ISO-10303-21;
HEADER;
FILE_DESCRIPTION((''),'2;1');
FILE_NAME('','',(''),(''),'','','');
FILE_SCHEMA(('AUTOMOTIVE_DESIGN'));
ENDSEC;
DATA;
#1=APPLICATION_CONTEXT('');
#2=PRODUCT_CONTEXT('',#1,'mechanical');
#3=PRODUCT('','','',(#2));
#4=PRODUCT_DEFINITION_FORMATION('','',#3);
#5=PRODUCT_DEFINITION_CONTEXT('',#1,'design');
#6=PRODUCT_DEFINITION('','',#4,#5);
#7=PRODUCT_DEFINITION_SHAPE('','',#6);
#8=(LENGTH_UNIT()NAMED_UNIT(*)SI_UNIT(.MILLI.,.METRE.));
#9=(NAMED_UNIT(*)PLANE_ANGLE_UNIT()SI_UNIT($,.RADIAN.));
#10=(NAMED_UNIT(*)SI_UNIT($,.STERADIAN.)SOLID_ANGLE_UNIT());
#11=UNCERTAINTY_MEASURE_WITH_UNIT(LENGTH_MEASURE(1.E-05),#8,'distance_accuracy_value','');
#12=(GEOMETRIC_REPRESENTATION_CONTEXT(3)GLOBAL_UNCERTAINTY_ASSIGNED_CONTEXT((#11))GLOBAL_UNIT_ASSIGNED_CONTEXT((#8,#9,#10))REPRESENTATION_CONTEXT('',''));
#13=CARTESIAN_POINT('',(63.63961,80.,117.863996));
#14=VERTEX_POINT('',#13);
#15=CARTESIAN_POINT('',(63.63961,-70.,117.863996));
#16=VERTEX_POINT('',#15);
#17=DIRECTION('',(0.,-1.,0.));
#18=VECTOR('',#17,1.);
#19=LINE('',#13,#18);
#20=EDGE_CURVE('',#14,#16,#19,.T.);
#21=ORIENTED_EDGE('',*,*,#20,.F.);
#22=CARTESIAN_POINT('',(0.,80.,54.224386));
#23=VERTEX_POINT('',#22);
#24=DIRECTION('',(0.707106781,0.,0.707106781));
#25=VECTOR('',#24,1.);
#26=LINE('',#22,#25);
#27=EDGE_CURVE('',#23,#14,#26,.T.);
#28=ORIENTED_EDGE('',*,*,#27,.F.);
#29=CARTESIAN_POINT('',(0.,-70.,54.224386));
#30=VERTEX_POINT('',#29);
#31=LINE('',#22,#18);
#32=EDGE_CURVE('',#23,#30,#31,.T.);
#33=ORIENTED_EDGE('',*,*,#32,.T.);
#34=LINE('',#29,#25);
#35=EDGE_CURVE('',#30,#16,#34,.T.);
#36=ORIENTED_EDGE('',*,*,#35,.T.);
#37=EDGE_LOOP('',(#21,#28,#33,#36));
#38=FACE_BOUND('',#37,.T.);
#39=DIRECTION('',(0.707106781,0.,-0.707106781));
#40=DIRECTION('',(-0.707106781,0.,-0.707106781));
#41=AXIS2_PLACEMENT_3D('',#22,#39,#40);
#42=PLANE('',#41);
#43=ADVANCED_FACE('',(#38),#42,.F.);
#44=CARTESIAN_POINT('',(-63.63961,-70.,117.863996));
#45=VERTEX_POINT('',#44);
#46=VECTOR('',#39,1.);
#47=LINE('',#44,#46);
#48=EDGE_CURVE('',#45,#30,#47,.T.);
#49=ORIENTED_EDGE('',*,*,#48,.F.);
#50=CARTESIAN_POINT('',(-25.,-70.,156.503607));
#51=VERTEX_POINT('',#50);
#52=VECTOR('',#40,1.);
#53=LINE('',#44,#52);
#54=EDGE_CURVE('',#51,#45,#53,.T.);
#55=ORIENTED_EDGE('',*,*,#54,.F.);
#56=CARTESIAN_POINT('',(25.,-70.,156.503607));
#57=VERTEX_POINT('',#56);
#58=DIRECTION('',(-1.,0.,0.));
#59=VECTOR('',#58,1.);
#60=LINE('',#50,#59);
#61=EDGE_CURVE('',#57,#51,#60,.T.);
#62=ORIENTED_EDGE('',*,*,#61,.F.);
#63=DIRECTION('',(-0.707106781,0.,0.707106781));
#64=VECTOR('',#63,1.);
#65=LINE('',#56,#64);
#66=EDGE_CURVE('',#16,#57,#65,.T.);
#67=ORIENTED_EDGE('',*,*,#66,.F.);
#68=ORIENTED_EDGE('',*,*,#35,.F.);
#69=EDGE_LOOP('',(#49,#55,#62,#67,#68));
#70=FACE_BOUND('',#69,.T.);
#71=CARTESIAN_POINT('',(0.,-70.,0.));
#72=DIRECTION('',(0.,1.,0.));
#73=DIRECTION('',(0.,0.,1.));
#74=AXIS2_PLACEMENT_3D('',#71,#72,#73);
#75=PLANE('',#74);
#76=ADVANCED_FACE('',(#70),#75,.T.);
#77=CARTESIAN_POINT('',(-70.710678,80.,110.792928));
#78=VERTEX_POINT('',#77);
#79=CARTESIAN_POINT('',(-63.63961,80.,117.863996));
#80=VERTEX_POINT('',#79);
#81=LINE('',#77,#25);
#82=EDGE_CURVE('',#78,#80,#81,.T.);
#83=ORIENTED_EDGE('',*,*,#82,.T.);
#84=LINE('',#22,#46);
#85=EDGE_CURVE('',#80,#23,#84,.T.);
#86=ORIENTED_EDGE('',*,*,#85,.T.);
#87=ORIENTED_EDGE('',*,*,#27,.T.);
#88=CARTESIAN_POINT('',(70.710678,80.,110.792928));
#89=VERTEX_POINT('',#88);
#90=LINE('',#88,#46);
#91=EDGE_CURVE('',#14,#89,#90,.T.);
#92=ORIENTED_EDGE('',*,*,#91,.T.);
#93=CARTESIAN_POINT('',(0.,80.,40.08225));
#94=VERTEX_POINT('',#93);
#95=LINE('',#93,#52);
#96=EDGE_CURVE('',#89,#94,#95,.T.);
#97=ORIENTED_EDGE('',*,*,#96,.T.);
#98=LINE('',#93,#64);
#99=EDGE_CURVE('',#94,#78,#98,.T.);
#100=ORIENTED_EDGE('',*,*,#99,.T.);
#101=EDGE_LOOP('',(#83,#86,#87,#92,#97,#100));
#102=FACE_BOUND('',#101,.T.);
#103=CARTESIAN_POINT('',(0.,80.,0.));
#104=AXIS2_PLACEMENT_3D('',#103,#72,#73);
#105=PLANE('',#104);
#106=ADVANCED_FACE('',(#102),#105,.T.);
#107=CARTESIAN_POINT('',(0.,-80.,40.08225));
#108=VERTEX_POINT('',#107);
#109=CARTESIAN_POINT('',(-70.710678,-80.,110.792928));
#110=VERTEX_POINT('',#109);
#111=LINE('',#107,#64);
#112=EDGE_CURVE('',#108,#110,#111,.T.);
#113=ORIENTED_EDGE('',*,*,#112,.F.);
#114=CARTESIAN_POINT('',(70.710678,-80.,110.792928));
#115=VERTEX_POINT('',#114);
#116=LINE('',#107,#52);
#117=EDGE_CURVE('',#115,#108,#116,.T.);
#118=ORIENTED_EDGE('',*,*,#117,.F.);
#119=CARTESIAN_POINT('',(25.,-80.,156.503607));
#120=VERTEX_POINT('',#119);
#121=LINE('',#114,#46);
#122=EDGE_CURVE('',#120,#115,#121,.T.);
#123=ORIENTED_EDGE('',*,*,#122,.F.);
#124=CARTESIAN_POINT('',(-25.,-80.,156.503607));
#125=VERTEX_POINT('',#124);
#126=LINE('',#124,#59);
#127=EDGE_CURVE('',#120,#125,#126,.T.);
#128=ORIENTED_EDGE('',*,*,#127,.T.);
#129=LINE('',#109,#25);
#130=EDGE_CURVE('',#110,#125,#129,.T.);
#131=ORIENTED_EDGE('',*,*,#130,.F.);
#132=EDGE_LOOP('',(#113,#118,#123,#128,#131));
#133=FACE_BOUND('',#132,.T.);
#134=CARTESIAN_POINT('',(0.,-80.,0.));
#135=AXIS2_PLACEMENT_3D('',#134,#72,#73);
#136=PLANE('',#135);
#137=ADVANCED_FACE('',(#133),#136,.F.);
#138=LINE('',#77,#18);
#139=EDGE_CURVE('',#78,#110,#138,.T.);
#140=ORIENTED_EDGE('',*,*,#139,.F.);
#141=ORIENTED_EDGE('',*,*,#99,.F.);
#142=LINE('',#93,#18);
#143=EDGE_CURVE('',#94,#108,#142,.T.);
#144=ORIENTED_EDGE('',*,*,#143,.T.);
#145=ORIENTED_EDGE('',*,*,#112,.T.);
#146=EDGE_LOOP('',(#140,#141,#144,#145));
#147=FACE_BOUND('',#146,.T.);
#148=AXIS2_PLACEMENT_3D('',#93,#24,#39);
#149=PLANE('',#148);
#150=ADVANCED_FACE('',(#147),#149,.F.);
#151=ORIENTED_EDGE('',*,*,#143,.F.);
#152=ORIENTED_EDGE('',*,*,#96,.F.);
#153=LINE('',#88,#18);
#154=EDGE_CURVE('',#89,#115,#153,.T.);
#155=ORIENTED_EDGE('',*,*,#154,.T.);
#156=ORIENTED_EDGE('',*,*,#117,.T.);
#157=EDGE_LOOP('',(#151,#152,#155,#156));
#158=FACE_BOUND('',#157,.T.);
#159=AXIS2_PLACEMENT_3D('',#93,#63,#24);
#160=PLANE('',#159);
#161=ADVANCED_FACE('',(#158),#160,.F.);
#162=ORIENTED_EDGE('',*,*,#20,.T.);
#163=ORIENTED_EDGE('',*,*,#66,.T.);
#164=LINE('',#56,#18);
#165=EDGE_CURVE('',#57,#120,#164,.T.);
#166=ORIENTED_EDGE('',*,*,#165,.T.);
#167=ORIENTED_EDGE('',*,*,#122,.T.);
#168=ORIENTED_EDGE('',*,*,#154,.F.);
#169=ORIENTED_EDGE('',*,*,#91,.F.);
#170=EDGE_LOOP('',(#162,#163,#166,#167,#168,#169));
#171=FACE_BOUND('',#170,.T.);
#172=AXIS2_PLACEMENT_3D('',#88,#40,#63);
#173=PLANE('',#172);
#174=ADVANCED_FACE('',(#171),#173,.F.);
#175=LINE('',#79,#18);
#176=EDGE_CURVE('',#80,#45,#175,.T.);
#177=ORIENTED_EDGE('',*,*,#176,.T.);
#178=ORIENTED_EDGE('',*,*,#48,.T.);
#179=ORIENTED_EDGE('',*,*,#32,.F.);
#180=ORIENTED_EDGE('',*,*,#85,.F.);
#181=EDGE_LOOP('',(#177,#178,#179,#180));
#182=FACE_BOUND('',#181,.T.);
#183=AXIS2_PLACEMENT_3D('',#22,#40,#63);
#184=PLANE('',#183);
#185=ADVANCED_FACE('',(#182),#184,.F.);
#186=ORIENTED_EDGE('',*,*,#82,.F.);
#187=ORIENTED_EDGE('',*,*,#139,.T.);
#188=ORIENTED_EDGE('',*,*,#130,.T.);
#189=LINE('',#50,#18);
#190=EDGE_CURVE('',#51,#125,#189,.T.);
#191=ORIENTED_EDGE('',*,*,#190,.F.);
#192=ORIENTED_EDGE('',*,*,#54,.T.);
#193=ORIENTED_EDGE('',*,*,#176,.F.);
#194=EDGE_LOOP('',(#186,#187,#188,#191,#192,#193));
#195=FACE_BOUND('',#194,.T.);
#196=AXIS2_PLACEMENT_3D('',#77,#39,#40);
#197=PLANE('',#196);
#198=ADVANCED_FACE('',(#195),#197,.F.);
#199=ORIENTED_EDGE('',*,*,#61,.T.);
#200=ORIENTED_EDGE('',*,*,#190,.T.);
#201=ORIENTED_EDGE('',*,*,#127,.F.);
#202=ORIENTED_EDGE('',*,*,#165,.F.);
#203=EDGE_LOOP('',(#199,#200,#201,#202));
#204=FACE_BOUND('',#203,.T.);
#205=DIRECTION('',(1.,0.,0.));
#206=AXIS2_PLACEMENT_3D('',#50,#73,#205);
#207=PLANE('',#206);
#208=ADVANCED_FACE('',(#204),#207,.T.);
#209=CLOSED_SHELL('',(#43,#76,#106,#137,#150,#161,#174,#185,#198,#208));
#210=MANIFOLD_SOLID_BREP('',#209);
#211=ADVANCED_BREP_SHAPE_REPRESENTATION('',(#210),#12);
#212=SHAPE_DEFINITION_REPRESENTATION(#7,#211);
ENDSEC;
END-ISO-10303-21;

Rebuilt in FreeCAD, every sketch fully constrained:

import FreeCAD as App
import Part
import Sketcher
from FreeCAD import Vector

doc = App.newDocument("Part")
body = doc.addObject("PartDesign::Body", "Body")

sketch1 = doc.addObject("Sketcher::SketchObject", "Sketch")
body.addObject(sketch1)
sketch1.AttachmentSupport = (doc.XZ_Plane, [""])
sketch1.MapMode = "FlatFace"
sketch1.addGeometry([
    Part.LineSegment(Vector(70.710678, 110.792928, 0), Vector(0, 40.08225, 0)),
    Part.LineSegment(Vector(0, 40.08225, 0), Vector(-70.710678, 110.792928, 0)),
    Part.LineSegment(Vector(-70.710678, 110.792928, 0), Vector(-63.63961, 117.863996, 0)),
    Part.LineSegment(Vector(-63.63961, 117.863996, 0), Vector(0, 54.224386, 0)),
    Part.LineSegment(Vector(0, 54.224386, 0), Vector(63.63961, 117.863996, 0)),
    Part.LineSegment(Vector(63.63961, 117.863996, 0), Vector(70.710678, 110.792928, 0)),
], False)
sketch1.addConstraint([
    Sketcher.Constraint("Coincident", 0, 2, 1, 1),
    Sketcher.Constraint("Coincident", 1, 2, 2, 1),
    Sketcher.Constraint("Coincident", 2, 2, 3, 1),
    Sketcher.Constraint("Coincident", 3, 2, 4, 1),
    Sketcher.Constraint("Coincident", 4, 2, 5, 1),
    Sketcher.Constraint("Coincident", 5, 2, 0, 1),
    Sketcher.Constraint("Symmetric", 2, 2, 4, 2, -2),
    Sketcher.Constraint("Symmetric", 1, 2, 5, 2, -2),
    Sketcher.Constraint("PointOnObject", 0, 2, -2),
    Sketcher.Constraint("PointOnObject", 3, 2, -2),
    Sketcher.Constraint("Perpendicular", 0, 1),
    Sketcher.Constraint("Perpendicular", 1, 2),
    Sketcher.Constraint("Perpendicular", 2, 3),
    Sketcher.Constraint("Distance", 0, 100.0),
    Sketcher.Constraint("Distance", 2, 10.0),
    Sketcher.Constraint("DistanceY", -1, 1, 0, 2, 40.08225),
])
pad1 = doc.addObject("PartDesign::Pad", "Pad")
body.addObject(pad1)
pad1.Profile = sketch1
pad1.Length = 160
pad1.Midplane = True

sketch2 = doc.addObject("Sketcher::SketchObject", "Sketch001")
body.addObject(sketch2)
sketch2.AttachmentSupport = (doc.XZ_Plane, [""])
sketch2.MapMode = "FlatFace"
sketch2.AttachmentOffset = App.Placement(Vector(0, 0, 80), App.Rotation())
sketch2.addGeometry([
    Part.LineSegment(Vector(-63.63961, 117.863996, 0), Vector(0, 54.224386, 0)),
    Part.LineSegment(Vector(0, 54.224386, 0), Vector(63.63961, 117.863996, 0)),
    Part.LineSegment(Vector(63.63961, 117.863996, 0), Vector(25, 156.503607, 0)),
    Part.LineSegment(Vector(25, 156.503607, 0), Vector(-25, 156.503607, 0)),
    Part.LineSegment(Vector(-25, 156.503607, 0), Vector(-63.63961, 117.863996, 0)),
], False)
sketch2.addConstraint([
    Sketcher.Constraint("Coincident", 0, 2, 1, 1),
    Sketcher.Constraint("Coincident", 1, 2, 2, 1),
    Sketcher.Constraint("Coincident", 2, 2, 3, 1),
    Sketcher.Constraint("Coincident", 3, 2, 4, 1),
    Sketcher.Constraint("Coincident", 4, 2, 0, 1),
    Sketcher.Constraint("Horizontal", 3),
    Sketcher.Constraint("Symmetric", 1, 2, 4, 2, -2),
    Sketcher.Constraint("PointOnObject", 0, 2, -2),
    Sketcher.Constraint("Perpendicular", 0, 1),
    Sketcher.Constraint("Perpendicular", 1, 2),
    Sketcher.Constraint("Perpendicular", 2, 4),
    Sketcher.Constraint("DistanceX", 3, 2, 3, 1, 50.0),
    Sketcher.Constraint("Distance", 0, 90.0),
    Sketcher.Constraint("DistanceY", -1, 1, 0, 2, 54.224386),
])
pad2 = doc.addObject("PartDesign::Pad", "Pad001")
body.addObject(pad2)
pad2.Profile = sketch2
pad2.Length = 10
pad2.Reversed = True

doc.recompute()
